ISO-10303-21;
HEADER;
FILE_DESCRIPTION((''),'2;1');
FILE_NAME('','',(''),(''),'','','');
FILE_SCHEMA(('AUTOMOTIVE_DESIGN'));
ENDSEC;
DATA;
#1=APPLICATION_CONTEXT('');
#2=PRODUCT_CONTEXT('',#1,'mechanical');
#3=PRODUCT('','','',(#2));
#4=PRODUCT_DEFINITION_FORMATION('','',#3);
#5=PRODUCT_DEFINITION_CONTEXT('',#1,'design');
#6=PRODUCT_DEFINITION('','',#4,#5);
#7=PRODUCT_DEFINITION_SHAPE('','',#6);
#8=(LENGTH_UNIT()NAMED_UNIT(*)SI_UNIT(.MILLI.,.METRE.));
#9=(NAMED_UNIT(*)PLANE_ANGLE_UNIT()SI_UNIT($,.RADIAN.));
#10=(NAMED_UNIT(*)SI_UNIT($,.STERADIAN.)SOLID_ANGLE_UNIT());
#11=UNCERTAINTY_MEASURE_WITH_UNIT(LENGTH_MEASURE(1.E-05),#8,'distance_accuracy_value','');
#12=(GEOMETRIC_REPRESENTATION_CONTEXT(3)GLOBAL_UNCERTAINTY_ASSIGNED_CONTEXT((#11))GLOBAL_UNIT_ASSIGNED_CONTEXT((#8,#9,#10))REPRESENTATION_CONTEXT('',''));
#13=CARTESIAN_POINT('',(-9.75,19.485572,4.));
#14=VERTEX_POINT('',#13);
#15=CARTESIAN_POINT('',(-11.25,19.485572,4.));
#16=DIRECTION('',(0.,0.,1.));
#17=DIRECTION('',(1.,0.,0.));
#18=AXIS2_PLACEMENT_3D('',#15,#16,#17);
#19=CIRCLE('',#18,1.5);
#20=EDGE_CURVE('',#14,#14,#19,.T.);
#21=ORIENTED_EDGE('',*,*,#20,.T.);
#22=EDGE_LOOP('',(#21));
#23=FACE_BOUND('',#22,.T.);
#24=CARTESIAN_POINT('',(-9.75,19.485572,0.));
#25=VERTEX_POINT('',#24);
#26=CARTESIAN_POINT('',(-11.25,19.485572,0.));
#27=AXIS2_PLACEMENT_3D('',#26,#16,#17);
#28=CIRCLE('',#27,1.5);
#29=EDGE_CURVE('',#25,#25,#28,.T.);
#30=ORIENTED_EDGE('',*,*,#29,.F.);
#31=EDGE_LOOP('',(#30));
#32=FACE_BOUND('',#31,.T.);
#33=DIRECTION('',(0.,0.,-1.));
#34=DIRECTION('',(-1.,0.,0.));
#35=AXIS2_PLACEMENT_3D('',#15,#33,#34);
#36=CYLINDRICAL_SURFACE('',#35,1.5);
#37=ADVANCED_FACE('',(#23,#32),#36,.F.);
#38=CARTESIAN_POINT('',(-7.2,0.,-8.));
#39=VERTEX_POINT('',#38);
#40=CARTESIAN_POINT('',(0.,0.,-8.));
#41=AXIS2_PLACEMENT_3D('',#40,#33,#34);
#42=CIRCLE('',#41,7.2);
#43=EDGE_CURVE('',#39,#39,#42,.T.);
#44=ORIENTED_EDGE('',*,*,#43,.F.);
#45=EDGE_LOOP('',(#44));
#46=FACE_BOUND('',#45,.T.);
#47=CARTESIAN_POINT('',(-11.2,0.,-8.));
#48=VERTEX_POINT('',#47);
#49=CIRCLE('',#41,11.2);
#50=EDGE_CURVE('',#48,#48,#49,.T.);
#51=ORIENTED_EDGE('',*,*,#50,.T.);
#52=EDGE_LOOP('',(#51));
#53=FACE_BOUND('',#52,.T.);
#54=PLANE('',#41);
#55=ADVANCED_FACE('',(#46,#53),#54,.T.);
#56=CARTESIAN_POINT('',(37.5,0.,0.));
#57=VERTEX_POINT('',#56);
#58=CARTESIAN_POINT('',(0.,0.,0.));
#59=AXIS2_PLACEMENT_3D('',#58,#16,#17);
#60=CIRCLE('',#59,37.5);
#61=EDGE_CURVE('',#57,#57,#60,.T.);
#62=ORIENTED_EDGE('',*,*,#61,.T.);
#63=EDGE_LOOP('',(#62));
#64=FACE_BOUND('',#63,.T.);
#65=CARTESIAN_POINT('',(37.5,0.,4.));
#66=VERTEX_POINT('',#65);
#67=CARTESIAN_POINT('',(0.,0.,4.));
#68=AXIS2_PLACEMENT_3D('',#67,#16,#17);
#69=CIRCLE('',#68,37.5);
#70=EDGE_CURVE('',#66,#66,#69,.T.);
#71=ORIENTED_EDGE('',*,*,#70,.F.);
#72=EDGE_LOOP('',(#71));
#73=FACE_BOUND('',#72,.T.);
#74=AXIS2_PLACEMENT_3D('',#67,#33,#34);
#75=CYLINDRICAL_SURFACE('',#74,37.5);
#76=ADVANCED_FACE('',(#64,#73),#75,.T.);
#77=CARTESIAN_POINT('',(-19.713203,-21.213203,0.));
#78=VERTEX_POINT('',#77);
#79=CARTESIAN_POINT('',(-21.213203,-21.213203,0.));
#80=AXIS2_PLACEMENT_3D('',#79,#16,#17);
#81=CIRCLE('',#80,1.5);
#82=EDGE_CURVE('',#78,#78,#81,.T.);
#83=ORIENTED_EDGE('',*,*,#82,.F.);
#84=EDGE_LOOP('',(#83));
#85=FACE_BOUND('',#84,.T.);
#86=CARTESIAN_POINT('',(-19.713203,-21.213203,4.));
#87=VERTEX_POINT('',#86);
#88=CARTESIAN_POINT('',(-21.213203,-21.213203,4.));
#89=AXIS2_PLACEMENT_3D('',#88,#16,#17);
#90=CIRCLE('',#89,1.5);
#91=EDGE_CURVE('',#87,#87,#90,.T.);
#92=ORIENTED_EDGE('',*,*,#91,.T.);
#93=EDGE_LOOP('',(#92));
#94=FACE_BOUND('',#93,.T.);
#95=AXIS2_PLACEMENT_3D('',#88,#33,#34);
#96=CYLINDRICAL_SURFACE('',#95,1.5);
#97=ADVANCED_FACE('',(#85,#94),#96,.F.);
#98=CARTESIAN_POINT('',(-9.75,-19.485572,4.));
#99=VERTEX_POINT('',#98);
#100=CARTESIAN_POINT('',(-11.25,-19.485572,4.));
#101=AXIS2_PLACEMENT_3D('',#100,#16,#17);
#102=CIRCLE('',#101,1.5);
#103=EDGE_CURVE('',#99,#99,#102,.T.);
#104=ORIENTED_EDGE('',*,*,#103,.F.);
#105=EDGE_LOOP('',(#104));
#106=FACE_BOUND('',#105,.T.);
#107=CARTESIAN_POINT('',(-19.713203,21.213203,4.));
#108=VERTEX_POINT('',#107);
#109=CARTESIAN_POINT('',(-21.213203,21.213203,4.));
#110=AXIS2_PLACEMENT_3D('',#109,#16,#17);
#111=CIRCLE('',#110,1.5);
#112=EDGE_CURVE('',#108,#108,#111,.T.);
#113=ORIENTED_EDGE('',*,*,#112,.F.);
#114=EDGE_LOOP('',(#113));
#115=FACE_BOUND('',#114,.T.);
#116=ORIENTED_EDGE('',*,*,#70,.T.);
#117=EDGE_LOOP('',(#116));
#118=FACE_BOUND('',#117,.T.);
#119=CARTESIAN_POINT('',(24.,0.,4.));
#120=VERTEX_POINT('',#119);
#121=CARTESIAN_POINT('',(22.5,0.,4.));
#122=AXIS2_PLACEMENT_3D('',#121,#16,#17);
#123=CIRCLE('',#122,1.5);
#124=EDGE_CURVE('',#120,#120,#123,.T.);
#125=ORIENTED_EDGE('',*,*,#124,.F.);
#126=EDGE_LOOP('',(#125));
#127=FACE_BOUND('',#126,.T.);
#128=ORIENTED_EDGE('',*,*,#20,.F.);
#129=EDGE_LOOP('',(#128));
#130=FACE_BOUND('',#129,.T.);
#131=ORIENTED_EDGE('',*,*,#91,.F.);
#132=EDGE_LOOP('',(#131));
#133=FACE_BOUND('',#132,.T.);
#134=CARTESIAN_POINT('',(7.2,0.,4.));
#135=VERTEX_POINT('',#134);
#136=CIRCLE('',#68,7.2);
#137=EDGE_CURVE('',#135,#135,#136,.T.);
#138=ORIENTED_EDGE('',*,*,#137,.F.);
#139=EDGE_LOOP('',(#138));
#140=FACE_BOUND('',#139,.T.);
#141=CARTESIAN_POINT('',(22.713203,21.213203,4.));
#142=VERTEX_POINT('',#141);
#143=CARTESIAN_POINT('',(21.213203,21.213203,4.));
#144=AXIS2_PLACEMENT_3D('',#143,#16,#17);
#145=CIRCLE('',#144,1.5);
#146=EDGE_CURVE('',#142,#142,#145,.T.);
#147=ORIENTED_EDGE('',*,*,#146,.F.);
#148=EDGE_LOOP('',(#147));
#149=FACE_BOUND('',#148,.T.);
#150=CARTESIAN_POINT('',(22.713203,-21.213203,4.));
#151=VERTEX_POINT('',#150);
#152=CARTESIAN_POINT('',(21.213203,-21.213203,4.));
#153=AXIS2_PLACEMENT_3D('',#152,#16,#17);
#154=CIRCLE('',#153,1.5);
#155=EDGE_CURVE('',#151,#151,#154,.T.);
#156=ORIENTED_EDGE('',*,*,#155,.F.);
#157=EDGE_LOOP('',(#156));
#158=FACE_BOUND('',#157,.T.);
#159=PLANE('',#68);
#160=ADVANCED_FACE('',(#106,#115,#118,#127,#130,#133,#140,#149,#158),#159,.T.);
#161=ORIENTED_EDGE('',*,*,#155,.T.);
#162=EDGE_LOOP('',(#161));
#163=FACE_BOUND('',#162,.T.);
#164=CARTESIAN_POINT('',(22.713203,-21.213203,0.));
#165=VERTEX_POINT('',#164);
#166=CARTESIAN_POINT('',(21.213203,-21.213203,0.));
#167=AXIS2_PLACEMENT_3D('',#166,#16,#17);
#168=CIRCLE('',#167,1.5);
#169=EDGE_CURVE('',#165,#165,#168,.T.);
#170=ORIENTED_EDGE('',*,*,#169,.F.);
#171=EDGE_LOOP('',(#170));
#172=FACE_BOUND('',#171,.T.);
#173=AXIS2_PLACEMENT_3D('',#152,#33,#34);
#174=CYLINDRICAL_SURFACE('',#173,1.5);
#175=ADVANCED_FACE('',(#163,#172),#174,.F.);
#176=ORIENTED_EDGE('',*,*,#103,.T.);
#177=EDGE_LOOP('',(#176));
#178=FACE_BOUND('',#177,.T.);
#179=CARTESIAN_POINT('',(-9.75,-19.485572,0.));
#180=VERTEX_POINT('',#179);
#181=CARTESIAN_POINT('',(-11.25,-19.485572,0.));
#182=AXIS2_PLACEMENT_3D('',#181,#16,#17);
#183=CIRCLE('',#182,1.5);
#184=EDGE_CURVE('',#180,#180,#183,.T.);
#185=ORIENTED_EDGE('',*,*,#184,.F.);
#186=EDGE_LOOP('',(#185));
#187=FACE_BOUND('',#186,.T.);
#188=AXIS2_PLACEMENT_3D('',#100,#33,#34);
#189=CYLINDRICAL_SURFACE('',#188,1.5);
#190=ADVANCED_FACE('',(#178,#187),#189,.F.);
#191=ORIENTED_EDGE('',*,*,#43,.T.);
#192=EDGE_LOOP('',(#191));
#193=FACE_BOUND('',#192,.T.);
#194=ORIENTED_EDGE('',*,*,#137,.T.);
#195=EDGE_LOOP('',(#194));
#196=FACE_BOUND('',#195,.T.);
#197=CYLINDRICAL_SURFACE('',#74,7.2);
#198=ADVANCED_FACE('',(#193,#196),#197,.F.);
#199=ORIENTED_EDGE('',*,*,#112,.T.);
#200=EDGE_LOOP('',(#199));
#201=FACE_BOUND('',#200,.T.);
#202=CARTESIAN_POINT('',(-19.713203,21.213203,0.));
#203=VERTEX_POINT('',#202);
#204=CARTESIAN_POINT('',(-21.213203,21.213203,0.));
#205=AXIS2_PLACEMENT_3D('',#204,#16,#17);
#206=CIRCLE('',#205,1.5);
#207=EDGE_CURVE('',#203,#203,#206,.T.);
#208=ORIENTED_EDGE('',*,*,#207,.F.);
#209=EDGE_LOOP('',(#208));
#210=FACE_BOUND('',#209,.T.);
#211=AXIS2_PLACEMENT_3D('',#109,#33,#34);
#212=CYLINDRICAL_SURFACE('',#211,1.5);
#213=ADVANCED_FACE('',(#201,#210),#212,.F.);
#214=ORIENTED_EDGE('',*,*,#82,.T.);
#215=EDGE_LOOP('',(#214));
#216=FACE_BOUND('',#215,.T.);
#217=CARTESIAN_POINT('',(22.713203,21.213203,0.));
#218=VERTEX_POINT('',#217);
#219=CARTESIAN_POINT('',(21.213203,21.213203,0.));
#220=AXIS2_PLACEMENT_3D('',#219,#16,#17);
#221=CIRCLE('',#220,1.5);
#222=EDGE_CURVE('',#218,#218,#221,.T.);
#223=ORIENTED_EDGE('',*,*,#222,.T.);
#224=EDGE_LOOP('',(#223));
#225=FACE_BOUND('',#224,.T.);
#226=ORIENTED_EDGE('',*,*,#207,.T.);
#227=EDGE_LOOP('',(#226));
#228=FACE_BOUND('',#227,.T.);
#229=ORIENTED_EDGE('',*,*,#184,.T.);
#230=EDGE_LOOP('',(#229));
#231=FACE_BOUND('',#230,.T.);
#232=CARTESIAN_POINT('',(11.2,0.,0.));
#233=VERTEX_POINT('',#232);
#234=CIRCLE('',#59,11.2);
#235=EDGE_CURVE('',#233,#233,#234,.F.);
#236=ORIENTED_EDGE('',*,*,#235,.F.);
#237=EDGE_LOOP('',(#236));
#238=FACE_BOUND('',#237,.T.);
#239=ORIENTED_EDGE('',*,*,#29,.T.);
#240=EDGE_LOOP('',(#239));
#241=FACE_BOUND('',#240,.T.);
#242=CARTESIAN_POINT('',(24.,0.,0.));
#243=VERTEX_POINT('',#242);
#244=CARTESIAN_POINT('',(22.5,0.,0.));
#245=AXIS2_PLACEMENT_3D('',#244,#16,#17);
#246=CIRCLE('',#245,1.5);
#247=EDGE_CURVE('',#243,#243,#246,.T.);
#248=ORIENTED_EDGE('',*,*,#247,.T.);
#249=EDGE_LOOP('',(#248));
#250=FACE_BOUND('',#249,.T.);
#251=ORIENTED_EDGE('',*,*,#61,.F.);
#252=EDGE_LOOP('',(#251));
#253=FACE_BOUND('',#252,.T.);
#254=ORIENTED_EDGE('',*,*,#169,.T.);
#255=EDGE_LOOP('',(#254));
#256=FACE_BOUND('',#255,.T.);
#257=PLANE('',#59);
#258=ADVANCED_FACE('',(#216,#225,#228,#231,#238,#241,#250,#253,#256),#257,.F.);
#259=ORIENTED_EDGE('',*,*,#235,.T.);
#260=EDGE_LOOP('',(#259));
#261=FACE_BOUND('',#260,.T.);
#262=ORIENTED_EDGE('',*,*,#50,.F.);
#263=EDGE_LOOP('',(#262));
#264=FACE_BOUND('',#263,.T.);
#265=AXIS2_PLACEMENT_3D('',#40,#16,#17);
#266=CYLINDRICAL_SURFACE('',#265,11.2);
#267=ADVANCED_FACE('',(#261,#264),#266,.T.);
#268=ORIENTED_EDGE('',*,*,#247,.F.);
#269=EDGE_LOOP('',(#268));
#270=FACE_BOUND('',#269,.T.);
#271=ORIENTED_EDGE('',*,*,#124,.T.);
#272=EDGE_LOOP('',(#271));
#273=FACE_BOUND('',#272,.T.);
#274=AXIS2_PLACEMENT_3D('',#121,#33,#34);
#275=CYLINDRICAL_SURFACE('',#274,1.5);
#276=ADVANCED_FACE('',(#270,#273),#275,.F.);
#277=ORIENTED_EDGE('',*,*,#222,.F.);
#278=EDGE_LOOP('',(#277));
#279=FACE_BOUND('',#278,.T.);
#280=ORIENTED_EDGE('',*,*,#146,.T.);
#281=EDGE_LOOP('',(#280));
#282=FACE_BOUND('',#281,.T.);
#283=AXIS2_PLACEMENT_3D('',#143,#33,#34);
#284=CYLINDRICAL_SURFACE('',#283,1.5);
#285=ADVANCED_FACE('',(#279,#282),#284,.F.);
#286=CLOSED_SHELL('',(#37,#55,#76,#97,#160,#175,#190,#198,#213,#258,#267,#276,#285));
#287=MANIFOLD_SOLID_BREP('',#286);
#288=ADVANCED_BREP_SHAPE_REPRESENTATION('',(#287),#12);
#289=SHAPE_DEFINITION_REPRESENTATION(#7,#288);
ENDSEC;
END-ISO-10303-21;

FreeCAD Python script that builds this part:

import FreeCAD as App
import Part
import Sketcher

V = App.Vector
Q = App.Units.Quantity

doc = App.newDocument("Part")
body = doc.addObject("PartDesign::Body", "Body")

# Sketch on XY plane
sketch1 = body.newObject("Sketcher::SketchObject", "Sketch")
sketch1.AttachmentSupport = (doc.getObject("XY_Plane"), [""])
sketch1.MapMode = "FlatFace"
sketch1.addGeometry([
    Part.Circle(V(0, 0, 0), V(0, 0, 1), 37.5),  # 0
    Part.Circle(V(-21.2, -21.2, 0), V(0, 0, 1), 1.5),  # 1
    Part.Circle(V(-11.2, -19.5, 0), V(0, 0, 1), 1.5),  # 2
    Part.Circle(V(21.2, -21.2, 0), V(0, 0, 1), 1.5),  # 3
    Part.Circle(V(0, 0, 0), V(0, 0, 1), 7.2),  # 4
    Part.Circle(V(-21.2, 21.2, 0), V(0, 0, 1), 1.5),  # 5
    Part.Circle(V(-11.2, 19.5, 0), V(0, 0, 1), 1.5),  # 6
    Part.Circle(V(22.5, 0, 0), V(0, 0, 1), 1.5),  # 7
    Part.Circle(V(21.2, 21.2, 0), V(0, 0, 1), 1.5),  # 8
], False)
sketch1.addConstraint([
    Sketcher.Constraint("Coincident", 0, 3, -1, 1),
    Sketcher.Constraint("Coincident", 4, 3, -1, 1),
    Sketcher.Constraint("Equal", 1, 2),
    Sketcher.Constraint("Equal", 2, 3),
    Sketcher.Constraint("Equal", 3, 5),
    Sketcher.Constraint("Equal", 5, 6),
    Sketcher.Constraint("Equal", 6, 7),
    Sketcher.Constraint("Equal", 7, 8),
    Sketcher.Constraint("Symmetric", 3, 3, 5, 3, -1, 1),
    Sketcher.Constraint("Symmetric", 1, 3, 8, 3, -1, 1),
    Sketcher.Constraint("Symmetric", 1, 3, 3, 3, -2),
    Sketcher.Constraint("Symmetric", 2, 3, 6, 3, -1),
    Sketcher.Constraint("PointOnObject", 7, 3, -1),
    Sketcher.Constraint("Diameter", 0, Q("75 mm")),
    Sketcher.Constraint("Diameter", 1, Q("3 mm")),
    Sketcher.Constraint("Diameter", 4, Q("14.4 mm")),
    Sketcher.Constraint("DistanceX", -1, 1, 7, 3, Q("22.5 mm")),
    Sketcher.Constraint("DistanceX", 2, 3, -1, 1, Q("11.25 mm")),
    Sketcher.Constraint("DistanceY", 2, 3, -1, 1, Q("19.485572 mm")),
    Sketcher.Constraint("DistanceY", 1, 3, 2, 3, Q("1.727632 mm")),
    Sketcher.Constraint("DistanceX", 1, 3, -1, 1, Q("21.213203 mm")),
])
pad1 = body.newObject("PartDesign::Pad", "Pad")
pad1.Profile = sketch1
pad1.Length = 4

# Sketch on XY plane
sketch2 = body.newObject("Sketcher::SketchObject", "Sketch001")
sketch2.AttachmentSupport = (doc.getObject("XY_Plane"), [""])
sketch2.MapMode = "FlatFace"
sketch2.addGeometry([
    Part.Circle(V(0, 0, 0), V(0, 0, 1), 11),
    Part.Circle(V(0, 0, 0), V(0, 0, 1), 7),
], False)
sketch2.addConstraint([
    Sketcher.Constraint("Coincident", 0, 3, -1, 1),
    Sketcher.Constraint("Coincident", 1, 3, -1, 1),
    Sketcher.Constraint("Diameter", 0, Q("22.4 mm")),
    Sketcher.Constraint("Diameter", 1, Q("14.4 mm")),
])
pad2 = body.newObject("PartDesign::Pad", "Pad001")
pad2.Profile = sketch2
pad2.Length = 8
pad2.Reversed = True

doc.recompute()
